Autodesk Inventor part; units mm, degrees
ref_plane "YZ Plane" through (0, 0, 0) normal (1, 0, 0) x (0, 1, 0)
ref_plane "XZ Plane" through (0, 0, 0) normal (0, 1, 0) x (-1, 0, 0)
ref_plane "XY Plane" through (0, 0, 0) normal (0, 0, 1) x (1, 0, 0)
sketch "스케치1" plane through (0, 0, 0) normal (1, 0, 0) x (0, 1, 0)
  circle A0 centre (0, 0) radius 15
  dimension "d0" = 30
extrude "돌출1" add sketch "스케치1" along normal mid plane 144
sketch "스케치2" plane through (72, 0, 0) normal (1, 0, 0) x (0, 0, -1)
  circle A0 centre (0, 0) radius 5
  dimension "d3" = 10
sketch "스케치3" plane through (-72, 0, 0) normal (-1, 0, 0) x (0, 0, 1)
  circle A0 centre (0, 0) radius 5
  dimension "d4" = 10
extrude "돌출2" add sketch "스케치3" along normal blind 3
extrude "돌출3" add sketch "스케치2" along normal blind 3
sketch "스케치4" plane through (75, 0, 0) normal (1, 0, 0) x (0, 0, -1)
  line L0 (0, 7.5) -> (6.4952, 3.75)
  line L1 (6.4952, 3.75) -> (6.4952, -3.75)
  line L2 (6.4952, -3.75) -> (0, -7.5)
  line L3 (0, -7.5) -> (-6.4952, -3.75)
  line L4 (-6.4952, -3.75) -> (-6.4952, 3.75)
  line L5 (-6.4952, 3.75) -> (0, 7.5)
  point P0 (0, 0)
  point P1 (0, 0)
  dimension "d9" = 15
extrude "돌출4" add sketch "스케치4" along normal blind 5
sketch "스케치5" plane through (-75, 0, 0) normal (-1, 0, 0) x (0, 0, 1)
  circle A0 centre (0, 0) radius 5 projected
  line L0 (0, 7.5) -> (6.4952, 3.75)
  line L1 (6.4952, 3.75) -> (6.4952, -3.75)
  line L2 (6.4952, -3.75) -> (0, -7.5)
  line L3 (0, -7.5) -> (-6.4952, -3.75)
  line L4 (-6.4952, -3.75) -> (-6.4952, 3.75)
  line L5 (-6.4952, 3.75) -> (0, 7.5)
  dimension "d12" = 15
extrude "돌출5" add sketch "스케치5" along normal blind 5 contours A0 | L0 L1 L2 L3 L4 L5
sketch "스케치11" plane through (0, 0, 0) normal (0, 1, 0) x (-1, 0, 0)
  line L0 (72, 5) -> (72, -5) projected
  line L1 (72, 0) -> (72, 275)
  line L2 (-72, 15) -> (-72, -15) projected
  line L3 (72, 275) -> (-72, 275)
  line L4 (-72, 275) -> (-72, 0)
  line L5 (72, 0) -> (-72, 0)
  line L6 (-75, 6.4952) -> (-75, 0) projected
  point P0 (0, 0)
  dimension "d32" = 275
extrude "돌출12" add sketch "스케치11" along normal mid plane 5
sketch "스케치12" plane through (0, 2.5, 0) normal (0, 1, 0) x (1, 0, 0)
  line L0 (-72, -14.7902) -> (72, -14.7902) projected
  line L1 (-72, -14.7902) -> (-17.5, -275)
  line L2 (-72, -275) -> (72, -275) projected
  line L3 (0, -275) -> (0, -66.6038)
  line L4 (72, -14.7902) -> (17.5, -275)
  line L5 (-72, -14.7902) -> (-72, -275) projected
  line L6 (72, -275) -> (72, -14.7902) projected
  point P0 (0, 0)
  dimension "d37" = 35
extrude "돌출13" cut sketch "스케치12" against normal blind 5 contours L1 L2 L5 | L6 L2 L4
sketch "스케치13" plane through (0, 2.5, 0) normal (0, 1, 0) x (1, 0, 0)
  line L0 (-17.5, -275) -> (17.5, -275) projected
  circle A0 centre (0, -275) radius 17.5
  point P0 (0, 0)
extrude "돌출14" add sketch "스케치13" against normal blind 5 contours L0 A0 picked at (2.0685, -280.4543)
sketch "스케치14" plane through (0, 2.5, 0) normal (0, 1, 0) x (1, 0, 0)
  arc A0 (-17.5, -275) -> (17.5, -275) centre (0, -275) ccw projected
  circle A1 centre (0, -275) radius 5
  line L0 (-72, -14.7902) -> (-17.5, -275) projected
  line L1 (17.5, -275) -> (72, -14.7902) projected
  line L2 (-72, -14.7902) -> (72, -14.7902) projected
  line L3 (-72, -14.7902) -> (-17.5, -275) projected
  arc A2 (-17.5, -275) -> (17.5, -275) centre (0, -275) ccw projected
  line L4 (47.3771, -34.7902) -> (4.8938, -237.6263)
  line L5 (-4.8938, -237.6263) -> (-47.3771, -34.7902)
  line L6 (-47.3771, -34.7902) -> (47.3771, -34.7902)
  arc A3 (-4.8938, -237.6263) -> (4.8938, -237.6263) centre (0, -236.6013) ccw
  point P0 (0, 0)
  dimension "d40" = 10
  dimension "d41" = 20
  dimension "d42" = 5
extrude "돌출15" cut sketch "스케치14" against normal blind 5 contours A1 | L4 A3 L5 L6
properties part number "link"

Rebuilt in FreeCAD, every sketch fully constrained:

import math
import FreeCAD as App
import Part
import Sketcher

V = App.Vector
Q = App.Units.Quantity


def add_polygon(sketch, points):
    """Adds a closed chain of lines whose ends are joined by coincident constraints."""
    first, n = sketch.GeometryCount, len(points)
    for a, b in zip(points, points[1:] + points[:1]):
        sketch.addGeometry(Part.LineSegment(App.Vector(*a, 0), App.Vector(*b, 0)), False)
    for i in range(n):
        sketch.addConstraint(Sketcher.Constraint("Coincident", first + i, 2, first + (i + 1) % n, 1))

doc = App.newDocument("Part")
params = doc.addObject("Spreadsheet::Sheet", "Params")
for row, (alias, value) in enumerate([
    ("sketch1_diameter", "30 mm"),
    ("pad1_length", "144 mm"),
    ("sketch2_diameter", "10 mm"),
    ("pad2_length", "3 mm"),
    ("sketch3_diameter", "10 mm"),
    ("pad3_length", "3 mm"),
    ("sketch4_width", "7.5 mm"),
    ("pad4_length", "5 mm"),
    ("sketch5_width", "7.5 mm"),
    ("pad5_length", "5 mm"),
    ("sketch6_height", "275 mm"),
    ("sketch6_width", "144 mm"),
    ("pad6_length", "5 mm"),
    ("sketch7_width", "54.5 mm"),
    ("pocket1_length", "5 mm"),
    ("sketch8_radius", "17.5 mm"),
    ("pad7_length", "5 mm"),
    ("sketch9_diameter", "10 mm"),
    ("pocket2_length", "5 mm"),
], start=1):
    params.set(f"A{row}", alias)
    params.set(f"B{row}", "=" + value)
    params.setAlias(f"B{row}", alias)

body = doc.addObject("PartDesign::Body", "Body")

sketch1 = body.newObject("Sketcher::SketchObject", "Sketch")
sketch1.AttachmentSupport = (doc.getObject("YZ_Plane"), [""])
sketch1.MapMode = "FlatFace"
sketch1.addGeometry(Part.Circle(V(0, 0, 0), V(0, 0, 1), 15), False)
sketch1.addConstraint(Sketcher.Constraint("Coincident", 0, 3, -1, 1))
sketch1.addConstraint(Sketcher.Constraint("Diameter", 0, 30.0))
sketch1.setExpression("Constraints[1]", "Params.sketch1_diameter")
pad1 = body.newObject("PartDesign::Pad", "Pad")
pad1.Profile = sketch1
pad1.setExpression("Length", "Params.pad1_length")
pad1.Midplane = True

sketch2 = body.newObject("Sketcher::SketchObject", "Sketch001")
sketch2.AttachmentSupport = (doc.getObject("YZ_Plane"), [""])
sketch2.MapMode = "FlatFace"
sketch2.AttachmentOffset = App.Placement(V(0, 0, -72), App.Rotation())
sketch2.addGeometry(Part.Circle(V(0, 0, 0), V(0, 0, 1), 5), False)
sketch2.addConstraint(Sketcher.Constraint("Coincident", 0, 3, -1, 1))
sketch2.addConstraint(Sketcher.Constraint("Diameter", 0, 10.0))
sketch2.setExpression("Constraints[1]", "Params.sketch2_diameter")
pad2 = body.newObject("PartDesign::Pad", "Pad001")
pad2.Profile = sketch2
pad2.setExpression("Length", "Params.pad2_length")
pad2.Reversed = True

sketch3 = body.newObject("Sketcher::SketchObject", "Sketch002")
sketch3.AttachmentSupport = (doc.getObject("YZ_Plane"), [""])
sketch3.MapMode = "FlatFace"
sketch3.AttachmentOffset = App.Placement(V(0, 0, 72), App.Rotation())
sketch3.addGeometry(Part.Circle(V(0, 0, 0), V(0, 0, 1), 5), False)
sketch3.addConstraint(Sketcher.Constraint("Coincident", 0, 3, -1, 1))
sketch3.addConstraint(Sketcher.Constraint("Diameter", 0, 10.0))
sketch3.setExpression("Constraints[1]", "Params.sketch3_diameter")
pad3 = body.newObject("PartDesign::Pad", "Pad002")
pad3.Profile = sketch3
pad3.setExpression("Length", "Params.pad3_length")

sketch4 = body.newObject("Sketcher::SketchObject", "Sketch003")
sketch4.AttachmentSupport = (doc.getObject("YZ_Plane"), [""])
sketch4.MapMode = "FlatFace"
sketch4.AttachmentOffset = App.Placement(V(0, 0, 75), App.Rotation())
add_polygon(sketch4, [(4, -6), (8, 0), (4, 6), (-4, 6), (-8, 0), (-4, -6)])
sketch4.addConstraint(Sketcher.Constraint("Horizontal", 2))
sketch4.addConstraint(Sketcher.Constraint("Horizontal", 5))
sketch4.addConstraint(Sketcher.Constraint("Symmetric", 0, 2, 3, 2, -1, 1))
sketch4.addConstraint(Sketcher.Constraint("Symmetric", 1, 2, 4, 2, -1, 1))
sketch4.addConstraint(Sketcher.Constraint("PointOnObject", 0, 2, -1))
sketch4.addConstraint(Sketcher.Constraint("Parallel", 0, 3))
sketch4.addConstraint(Sketcher.Constraint("Vertical", 2, 2, 4, 2))
sketch4.addConstraint(Sketcher.Constraint("DistanceX", 3, 2, 0, 2, 15.0))
sketch4.addConstraint(Sketcher.Constraint("Angle", 0, Q("60 deg")))
sketch4.addConstraint(Sketcher.Constraint("DistanceX", 2, 2, 2, 1, 7.5))
sketch4.setExpression("Constraints[15]", "Params.sketch4_width")
pad4 = body.newObject("PartDesign::Pad", "Pad003")
pad4.Profile = sketch4
pad4.setExpression("Length", "Params.pad4_length")

sketch5 = body.newObject("Sketcher::SketchObject", "Sketch004")
sketch5.AttachmentSupport = (doc.getObject("YZ_Plane"), [""])
sketch5.MapMode = "FlatFace"
sketch5.AttachmentOffset = App.Placement(V(0, 0, -75), App.Rotation())
add_polygon(sketch5, [(4, 6), (8, 0), (4, -6), (-4, -6), (-8, 0), (-4, 6)])
sketch5.addConstraint(Sketcher.Constraint("Horizontal", 2))
sketch5.addConstraint(Sketcher.Constraint("Horizontal", 5))
sketch5.addConstraint(Sketcher.Constraint("Symmetric", 0, 2, 3, 2, -1, 1))
sketch5.addConstraint(Sketcher.Constraint("Symmetric", 1, 2, 4, 2, -1, 1))
sketch5.addConstraint(Sketcher.Constraint("PointOnObject", 0, 2, -1))
sketch5.addConstraint(Sketcher.Constraint("Parallel", 0, 3))
sketch5.addConstraint(Sketcher.Constraint("Vertical", 2, 2, 4, 2))
sketch5.addConstraint(Sketcher.Constraint("DistanceX", 3, 2, 0, 2, 15.0))
sketch5.addConstraint(Sketcher.Constraint("Angle", 0, Q("-60 deg")))
sketch5.addConstraint(Sketcher.Constraint("DistanceX", 2, 2, 2, 1, 7.5))
sketch5.setExpression("Constraints[15]", "Params.sketch5_width")
pad5 = body.newObject("PartDesign::Pad", "Pad004")
pad5.Profile = sketch5
pad5.setExpression("Length", "Params.pad5_length")
pad5.Reversed = True

sketch6 = body.newObject("Sketcher::SketchObject", "Sketch005")
sketch6.AttachmentSupport = (doc.getObject("XZ_Plane"), [""])
sketch6.MapMode = "FlatFace"
add_polygon(sketch6, [(-72, 0), (-72, 275), (72, 275), (72, 0)])
sketch6.addConstraint(Sketcher.Constraint("Vertical", 0))
sketch6.addConstraint(Sketcher.Constraint("Horizontal", 1))
sketch6.addConstraint(Sketcher.Constraint("Vertical", 2))
sketch6.addConstraint(Sketcher.Constraint("Horizontal", 3))
sketch6.addConstraint(Sketcher.Constraint("Symmetric", 2, 2, 3, 2, -1, 1))
sketch6.addConstraint(Sketcher.Constraint("DistanceY", 0, 1, 0, 2, 275.0))
sketch6.addConstraint(Sketcher.Constraint("DistanceX", 1, 1, 1, 2, 144.0))
sketch6.setExpression("Constraints[9]", "Params.sketch6_height")
sketch6.setExpression("Constraints[10]", "Params.sketch6_width")
pad6 = body.newObject("PartDesign::Pad", "Pad005")
pad6.Profile = sketch6
pad6.setExpression("Length", "Params.pad6_length")
pad6.Midplane = True

sketch7 = body.newObject("Sketcher::SketchObject", "Sketch006")
sketch7.AttachmentSupport = (doc.getObject("XZ_Plane"), [""])
sketch7.MapMode = "FlatFace"
sketch7.AttachmentOffset = App.Placement(V(0, 0, -2.5), App.Rotation())
add_polygon(sketch7, [(-18, 275), (-72, 15), (-72, 275)])
add_polygon(sketch7, [(72, 275), (72, 15), (18, 275)])
sketch7.addConstraint(Sketcher.Constraint("Vertical", 1))
sketch7.addConstraint(Sketcher.Constraint("Horizontal", 2))
sketch7.addConstraint(Sketcher.Constraint("Vertical", 3))
sketch7.addConstraint(Sketcher.Constraint("Horizontal", 5))
sketch7.addConstraint(Sketcher.Constraint("Symmetric", 0, 2, 3, 2, -2))
sketch7.addConstraint(Sketcher.Constraint("Symmetric", 2, 2, 4, 2, -2))
sketch7.addConstraint(Sketcher.Constraint("DistanceX", 2, 2, 4, 2, 35.0))
sketch7.addConstraint(Sketcher.Constraint("DistanceX", 2, 1, 2, 2, 54.5))
sketch7.addConstraint(Sketcher.Constraint("DistanceY", -1, 1, 1, 2, 275.0))
sketch7.addConstraint(Sketcher.Constraint("Angle", 0, Q("-101.8294 deg")))
sketch7.setExpression("Constraints[13]", "Params.sketch7_width")
pocket1 = body.newObject("PartDesign::Pocket", "Pocket")
pocket1.Profile = sketch7
pocket1.setExpression("Length", "Params.pocket1_length")
pocket1.Reversed = True

sketch8 = body.newObject("Sketcher::SketchObject", "Sketch007")
sketch8.AttachmentSupport = (doc.getObject("XZ_Plane"), [""])
sketch8.MapMode = "FlatFace"
sketch8.AttachmentOffset = App.Placement(V(0, 0, -2.5), App.Rotation())
sketch8.addGeometry(Part.LineSegment(V(18, 275, 0), V(-18, 275, 0)), False)
sketch8.addGeometry(Part.ArcOfCircle(Part.Circle(V(0, 275, 0), V(0, 0, 1), 18), math.radians(0), math.radians(180)), False)
sketch8.addConstraint(Sketcher.Constraint("Coincident", 0, 1, 1, 1))
sketch8.addConstraint(Sketcher.Constraint("Coincident", 1, 2, 0, 2))
sketch8.addConstraint(Sketcher.Constraint("Horizontal", 0))
sketch8.addConstraint(Sketcher.Constraint("PointOnObject", 1, 3, -2))
sketch8.addConstraint(Sketcher.Constraint("Horizontal", 1, 3, 0, 1))
sketch8.addConstraint(Sketcher.Constraint("Radius", 1, 17.5))
sketch8.addConstraint(Sketcher.Constraint("DistanceY", -1, 1, 1, 3, 275.0))
sketch8.setExpression("Constraints[5]", "Params.sketch8_radius")
pad7 = body.newObject("PartDesign::Pad", "Pad006")
pad7.Profile = sketch8
pad7.setExpression("Length", "Params.pad7_length")

sketch9 = body.newObject("Sketcher::SketchObject", "Sketch008")
sketch9.AttachmentSupport = (doc.getObject("XZ_Plane"), [""])
sketch9.MapMode = "FlatFace"
sketch9.AttachmentOffset = App.Placement(V(0, 0, -2.5), App.Rotation())
sketch9.addGeometry(Part.Circle(V(0, 275, 0), V(0, 0, 1), 5), False)
sketch9.addGeometry(Part.LineSegment(V(4.9, 237.6, 0), V(47.4, 34.8, 0)), False)
sketch9.addGeometry(Part.LineSegment(V(47.4, 34.8, 0), V(-47.4, 34.8, 0)), False)
sketch9.addGeometry(Part.LineSegment(V(-47.4, 34.8, 0), V(-4.9, 237.6, 0)), False)
sketch9.addGeometry(Part.ArcOfCircle(Part.Circle(V(0, 236.6, 0), V(0, 0, 1), 5), math.radians(12), math.radians(168)), False)
sketch9.addConstraint(Sketcher.Constraint("Coincident", 1, 2, 2, 1))
sketch9.addConstraint(Sketcher.Constraint("Coincident", 2, 2, 3, 1))
sketch9.addConstraint(Sketcher.Constraint("Tangent", 3, 2, 4, 2))
sketch9.addConstraint(Sketcher.Constraint("Tangent", 4, 1, 1, 1))
sketch9.addConstraint(Sketcher.Constraint("Horizontal", 2))
sketch9.addConstraint(Sketcher.Constraint("Equal", 0, 4))
sketch9.addConstraint(Sketcher.Constraint("Symmetric", 3, 2, 4, 1, -2))
sketch9.addConstraint(Sketcher.Constraint("PointOnObject", 0, 3, -2))
sketch9.addConstraint(Sketcher.Constraint("Diameter", 0, 10.0))
sketch9.addConstraint(Sketcher.Constraint("DistanceY", -1, 1, 0, 3, 275.0))
sketch9.addConstraint(Sketcher.Constraint("Angle", 1, Q("-78.1706 deg")))
sketch9.addConstraint(Sketcher.Constraint("DistanceX", 2, 2, 2, 1, 94.7542))
sketch9.addConstraint(Sketcher.Constraint("DistanceY", -1, 1, 4, 3, 236.6013))
sketch9.setExpression("Constraints[8]", "Params.sketch9_diameter")
pocket2 = body.newObject("PartDesign::Pocket", "Pocket001")
pocket2.Profile = sketch9
pocket2.setExpression("Length", "Params.pocket2_length")
pocket2.Reversed = True

doc.recompute()
